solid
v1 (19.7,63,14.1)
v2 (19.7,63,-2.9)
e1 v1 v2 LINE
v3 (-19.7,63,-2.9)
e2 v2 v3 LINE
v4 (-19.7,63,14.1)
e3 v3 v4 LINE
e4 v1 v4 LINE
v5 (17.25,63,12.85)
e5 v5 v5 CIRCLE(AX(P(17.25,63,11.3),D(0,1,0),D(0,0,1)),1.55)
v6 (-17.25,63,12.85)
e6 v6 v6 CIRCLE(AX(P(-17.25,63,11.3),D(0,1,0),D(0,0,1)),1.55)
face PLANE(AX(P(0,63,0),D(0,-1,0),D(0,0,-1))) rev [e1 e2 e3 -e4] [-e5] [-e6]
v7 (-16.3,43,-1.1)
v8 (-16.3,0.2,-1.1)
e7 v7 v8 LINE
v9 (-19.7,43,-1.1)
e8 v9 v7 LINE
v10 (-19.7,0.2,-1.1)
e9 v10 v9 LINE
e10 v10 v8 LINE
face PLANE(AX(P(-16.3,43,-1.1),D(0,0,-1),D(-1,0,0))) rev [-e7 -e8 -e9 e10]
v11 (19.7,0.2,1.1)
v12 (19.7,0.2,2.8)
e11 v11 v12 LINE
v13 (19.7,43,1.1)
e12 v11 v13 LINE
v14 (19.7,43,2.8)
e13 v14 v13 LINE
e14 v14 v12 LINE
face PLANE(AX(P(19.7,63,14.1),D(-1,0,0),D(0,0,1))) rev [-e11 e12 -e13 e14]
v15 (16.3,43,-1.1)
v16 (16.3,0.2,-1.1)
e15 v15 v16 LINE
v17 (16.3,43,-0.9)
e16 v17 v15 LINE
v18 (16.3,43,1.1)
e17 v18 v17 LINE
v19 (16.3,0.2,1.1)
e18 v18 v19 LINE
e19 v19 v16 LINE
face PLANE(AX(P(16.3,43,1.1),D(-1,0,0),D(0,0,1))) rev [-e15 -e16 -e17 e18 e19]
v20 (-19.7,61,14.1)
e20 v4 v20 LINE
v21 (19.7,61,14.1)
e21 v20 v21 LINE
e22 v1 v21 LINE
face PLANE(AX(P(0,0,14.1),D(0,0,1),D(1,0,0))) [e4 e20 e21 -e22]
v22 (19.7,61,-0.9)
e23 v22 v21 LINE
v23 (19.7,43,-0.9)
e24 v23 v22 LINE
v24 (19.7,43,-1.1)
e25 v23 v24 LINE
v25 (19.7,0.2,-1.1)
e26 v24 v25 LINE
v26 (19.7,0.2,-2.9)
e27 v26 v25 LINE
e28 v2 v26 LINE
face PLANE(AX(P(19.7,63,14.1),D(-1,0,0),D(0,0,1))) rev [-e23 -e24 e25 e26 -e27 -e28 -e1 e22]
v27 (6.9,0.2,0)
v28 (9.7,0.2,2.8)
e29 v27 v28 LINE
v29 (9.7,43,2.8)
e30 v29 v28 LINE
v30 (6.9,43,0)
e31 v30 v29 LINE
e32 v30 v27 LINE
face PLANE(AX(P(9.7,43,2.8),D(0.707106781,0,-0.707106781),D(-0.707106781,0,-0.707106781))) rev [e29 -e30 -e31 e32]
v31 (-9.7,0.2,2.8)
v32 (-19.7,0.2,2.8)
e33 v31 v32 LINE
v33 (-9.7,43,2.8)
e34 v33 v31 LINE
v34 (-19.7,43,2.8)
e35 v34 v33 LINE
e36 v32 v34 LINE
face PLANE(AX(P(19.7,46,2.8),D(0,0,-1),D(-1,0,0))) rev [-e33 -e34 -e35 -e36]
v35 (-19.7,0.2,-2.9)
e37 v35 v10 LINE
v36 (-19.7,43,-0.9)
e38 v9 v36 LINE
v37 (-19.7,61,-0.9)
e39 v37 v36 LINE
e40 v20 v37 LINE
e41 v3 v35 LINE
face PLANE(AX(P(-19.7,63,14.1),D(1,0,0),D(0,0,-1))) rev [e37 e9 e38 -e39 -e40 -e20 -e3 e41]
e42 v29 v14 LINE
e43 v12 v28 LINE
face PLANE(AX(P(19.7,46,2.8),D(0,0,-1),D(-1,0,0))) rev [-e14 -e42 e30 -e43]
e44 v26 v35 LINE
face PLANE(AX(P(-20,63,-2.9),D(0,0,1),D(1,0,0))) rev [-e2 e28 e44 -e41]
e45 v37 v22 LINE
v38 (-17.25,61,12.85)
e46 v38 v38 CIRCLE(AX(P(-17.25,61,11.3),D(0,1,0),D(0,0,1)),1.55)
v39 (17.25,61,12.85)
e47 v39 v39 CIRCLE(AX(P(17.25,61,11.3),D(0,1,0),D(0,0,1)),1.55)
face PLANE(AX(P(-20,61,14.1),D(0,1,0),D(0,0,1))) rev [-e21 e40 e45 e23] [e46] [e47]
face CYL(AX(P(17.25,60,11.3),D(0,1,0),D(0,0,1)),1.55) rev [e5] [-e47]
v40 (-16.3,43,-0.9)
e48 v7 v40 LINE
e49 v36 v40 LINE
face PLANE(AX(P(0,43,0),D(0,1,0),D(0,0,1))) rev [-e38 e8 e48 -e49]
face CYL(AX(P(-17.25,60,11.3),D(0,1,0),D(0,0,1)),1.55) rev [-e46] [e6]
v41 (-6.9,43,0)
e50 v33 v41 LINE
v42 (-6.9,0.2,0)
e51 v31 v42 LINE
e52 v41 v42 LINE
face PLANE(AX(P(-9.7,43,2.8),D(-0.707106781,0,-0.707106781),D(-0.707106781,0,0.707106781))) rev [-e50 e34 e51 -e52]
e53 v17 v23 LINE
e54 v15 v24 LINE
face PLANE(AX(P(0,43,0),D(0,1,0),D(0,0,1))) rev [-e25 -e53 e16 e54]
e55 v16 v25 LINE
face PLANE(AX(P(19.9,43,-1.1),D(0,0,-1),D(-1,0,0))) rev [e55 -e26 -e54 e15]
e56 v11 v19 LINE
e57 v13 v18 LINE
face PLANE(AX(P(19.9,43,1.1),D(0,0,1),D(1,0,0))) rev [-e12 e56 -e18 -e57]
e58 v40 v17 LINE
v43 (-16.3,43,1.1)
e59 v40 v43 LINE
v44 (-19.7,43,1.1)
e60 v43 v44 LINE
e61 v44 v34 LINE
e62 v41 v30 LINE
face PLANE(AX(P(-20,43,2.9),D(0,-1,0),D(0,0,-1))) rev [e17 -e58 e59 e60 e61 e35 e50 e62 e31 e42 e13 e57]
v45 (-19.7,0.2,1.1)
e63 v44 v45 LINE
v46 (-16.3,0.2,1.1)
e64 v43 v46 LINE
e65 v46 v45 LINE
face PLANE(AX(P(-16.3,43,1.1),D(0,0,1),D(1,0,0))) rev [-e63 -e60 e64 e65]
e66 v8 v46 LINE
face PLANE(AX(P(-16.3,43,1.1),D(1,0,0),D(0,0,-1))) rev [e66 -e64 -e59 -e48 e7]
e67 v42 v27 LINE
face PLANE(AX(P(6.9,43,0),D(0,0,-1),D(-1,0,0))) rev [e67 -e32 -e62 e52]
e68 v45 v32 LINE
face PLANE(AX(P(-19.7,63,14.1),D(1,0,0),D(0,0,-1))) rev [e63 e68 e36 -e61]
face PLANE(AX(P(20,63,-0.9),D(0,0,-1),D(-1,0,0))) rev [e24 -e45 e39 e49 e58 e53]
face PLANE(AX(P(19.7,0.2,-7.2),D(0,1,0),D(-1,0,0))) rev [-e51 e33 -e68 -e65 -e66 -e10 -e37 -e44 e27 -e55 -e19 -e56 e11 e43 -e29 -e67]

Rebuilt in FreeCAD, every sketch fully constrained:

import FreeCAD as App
import Part
import Sketcher
from FreeCAD import Vector

doc = App.newDocument("Part")
body = doc.addObject("PartDesign::Body", "Body")

sketch1 = doc.addObject("Sketcher::SketchObject", "Sketch")
body.addObject(sketch1)
sketch1.AttachmentSupport = (doc.XZ_Plane, [""])
sketch1.MapMode = "FlatFace"
sketch1.addGeometry([
    Part.LineSegment(Vector(20, -2.9, 0), Vector(-20, -2.9, 0)),
    Part.LineSegment(Vector(-20, -2.9, 0), Vector(-20, -0.9, 0)),
    Part.LineSegment(Vector(-20, -0.9, 0), Vector(-16.5, -0.9, 0)),
    Part.LineSegment(Vector(-16.5, -0.9, 0), Vector(-16.5, 0.9, 0)),
    Part.LineSegment(Vector(-16.5, 0.9, 0), Vector(-20, 0.9, 0)),
    Part.LineSegment(Vector(-20, 0.9, 0), Vector(-20, 2.9, 0)),
    Part.LineSegment(Vector(-20, 2.9, 0), Vector(20, 2.9, 0)),
    Part.LineSegment(Vector(20, 2.9, 0), Vector(20, 0.9, 0)),
    Part.LineSegment(Vector(20, 0.9, 0), Vector(16.5, 0.9, 0)),
    Part.LineSegment(Vector(16.5, 0.9, 0), Vector(16.5, -0.9, 0)),
    Part.LineSegment(Vector(16.5, -0.9, 0), Vector(20, -0.9, 0)),
    Part.LineSegment(Vector(20, -0.9, 0), Vector(20, -2.9, 0)),
], False)
sketch1.addConstraint([
    Sketcher.Constraint("Coincident", 0, 2, 1, 1),
    Sketcher.Constraint("Coincident", 1, 2, 2, 1),
    Sketcher.Constraint("Coincident", 2, 2, 3, 1),
    Sketcher.Constraint("Coincident", 3, 2, 4, 1),
    Sketcher.Constraint("Coincident", 4, 2, 5, 1),
    Sketcher.Constraint("Coincident", 5, 2, 6, 1),
    Sketcher.Constraint("Coincident", 6, 2, 7, 1),
    Sketcher.Constraint("Coincident", 7, 2, 8, 1),
    Sketcher.Constraint("Coincident", 8, 2, 9, 1),
    Sketcher.Constraint("Coincident", 9, 2, 10, 1),
    Sketcher.Constraint("Coincident", 10, 2, 11, 1),
    Sketcher.Constraint("Coincident", 11, 2, 0, 1),
    Sketcher.Constraint("Horizontal", 0),
    Sketcher.Constraint("Vertical", 1),
    Sketcher.Constraint("Horizontal", 2),
    Sketcher.Constraint("Vertical", 3),
    Sketcher.Constraint("Horizontal", 4),
    Sketcher.Constraint("Vertical", 5),
    Sketcher.Constraint("Horizontal", 6),
    Sketcher.Constraint("Vertical", 7),
    Sketcher.Constraint("Horizontal", 8),
    Sketcher.Constraint("Vertical", 9),
    Sketcher.Constraint("Horizontal", 10),
    Sketcher.Constraint("Vertical", 11),
    Sketcher.Constraint("Symmetric", 0, 2, 6, 2, -1, 1),
    Sketcher.Constraint("Symmetric", 2, 2, 8, 2, -1, 1),
    Sketcher.Constraint("Symmetric", 4, 2, 10, 2, -1, 1),
    Sketcher.Constraint("Symmetric", 4, 2, 7, 2, -2),
    Sketcher.Constraint("DistanceX", 0, 2, 0, 1, 40.0),
    Sketcher.Constraint("DistanceY", 1, 1, 1, 2, 2.0),
    Sketcher.Constraint("DistanceX", 2, 1, 2, 2, 3.5),
    Sketcher.Constraint("DistanceY", 3, 1, 3, 2, 1.8),
])
pad1 = doc.addObject("PartDesign::Pad", "Pad")
body.addObject(pad1)
pad1.Profile = sketch1
pad1.Length = 63
pad1.Reversed = True

sketch2 = doc.addObject("Sketcher::SketchObject", "Sketch001")
body.addObject(sketch2)
sketch2.AttachmentSupport = (doc.YZ_Plane, [""])
sketch2.MapMode = "FlatFace"
sketch2.AttachmentOffset = App.Placement(Vector(0, 0, 20), App.Rotation())
sketch2.addGeometry([
    Part.LineSegment(Vector(63, 2.9, 0), Vector(43, 2.9, 0)),
    Part.LineSegment(Vector(43, 2.9, 0), Vector(43, -0.9, 0)),
    Part.LineSegment(Vector(43, -0.9, 0), Vector(63, -0.9, 0)),
    Part.LineSegment(Vector(63, -0.9, 0), Vector(63, 2.9, 0)),
], False)
sketch2.addConstraint([
    Sketcher.Constraint("Coincident", 0, 2, 1, 1),
    Sketcher.Constraint("Coincident", 1, 2, 2, 1),
    Sketcher.Constraint("Coincident", 2, 2, 3, 1),
    Sketcher.Constraint("Coincident", 3, 2, 0, 1),
    Sketcher.Constraint("Horizontal", 0),
    Sketcher.Constraint("Vertical", 1),
    Sketcher.Constraint("Horizontal", 2),
    Sketcher.Constraint("Vertical", 3),
    Sketcher.Constraint("DistanceX", 0, 2, 0, 1, 20.0),
    Sketcher.Constraint("DistanceY", 1, 2, 1, 1, 3.8),
    Sketcher.Constraint("DistanceX", -1, 1, 0, 2, 43.0),
    Sketcher.Constraint("DistanceY", -1, 1, 0, 2, 2.9),
])
pocket1 = doc.addObject("PartDesign::Pocket", "Pocket")
body.addObject(pocket1)
pocket1.Profile = sketch2
pocket1.Type = "ThroughAll"

sketch3 = doc.addObject("Sketcher::SketchObject", "Sketch002")
body.addObject(sketch3)
sketch3.AttachmentSupport = (doc.XY_Plane, [""])
sketch3.MapMode = "FlatFace"
sketch3.AttachmentOffset = App.Placement(Vector(0, 0, -0.9), App.Rotation())
sketch3.addGeometry([
    Part.LineSegment(Vector(-20, 63, 0), Vector(-20, 61, 0)),
    Part.LineSegment(Vector(-20, 61, 0), Vector(20, 61, 0)),
    Part.LineSegment(Vector(20, 61, 0), Vector(20, 63, 0)),
    Part.LineSegment(Vector(20, 63, 0), Vector(-20, 63, 0)),
], False)
sketch3.addConstraint([
    Sketcher.Constraint("Coincident", 0, 2, 1, 1),
    Sketcher.Constraint("Coincident", 1, 2, 2, 1),
    Sketcher.Constraint("Coincident", 2, 2, 3, 1),
    Sketcher.Constraint("Coincident", 3, 2, 0, 1),
    Sketcher.Constraint("Vertical", 0),
    Sketcher.Constraint("Horizontal", 1),
    Sketcher.Constraint("Vertical", 2),
    Sketcher.Constraint("Horizontal", 3),
    Sketcher.Constraint("DistanceX", 1, 1, 1, 2, 40.0),
    Sketcher.Constraint("DistanceY", 0, 2, 0, 1, 2.0),
    Sketcher.Constraint("DistanceX", 0, 2, -1, 1, 20.0),
    Sketcher.Constraint("DistanceY", -1, 1, 0, 2, 61.0),
])
pad2 = doc.addObject("PartDesign::Pad", "Pad001")
body.addObject(pad2)
pad2.Profile = sketch3
pad2.Length = 15

sketch4 = doc.addObject("Sketcher::SketchObject", "Sketch003")
body.addObject(sketch4)
sketch4.AttachmentSupport = (doc.XZ_Plane, [""])
sketch4.MapMode = "FlatFace"
sketch4.AttachmentOffset = App.Placement(Vector(0, 0, -63), App.Rotation())
sketch4.addGeometry([
    Part.Circle(Vector(-17.2, 11.3, 0), Vector(0, 0, 1), 1.6),
    Part.Circle(Vector(17.2, 11.3, 0), Vector(0, 0, 1), 1.6),
], False)
sketch4.addConstraint([
    Sketcher.Constraint("Equal", 0, 1),
    Sketcher.Constraint("Symmetric", 0, 3, 1, 3, -2),
    Sketcher.Constraint("Diameter", 0, 3.1),
    Sketcher.Constraint("DistanceY", -1, 1, 0, 3, 11.3),
    Sketcher.Constraint("DistanceX", 0, 3, 1, 3, 34.5),
])
pocket2 = doc.addObject("PartDesign::Pocket", "Pocket001")
body.addObject(pocket2)
pocket2.Profile = sketch4
pocket2.Length = 3
pocket2.Reversed = True

sketch5 = doc.addObject("Sketcher::SketchObject", "Sketch004")
body.addObject(sketch5)
sketch5.AttachmentSupport = (doc.XZ_Plane, [""])
sketch5.MapMode = "FlatFace"
sketch5.addGeometry([
    Part.LineSegment(Vector(-20, 14.1, 0), Vector(-20, -2.9, 0)),
    Part.LineSegment(Vector(-20, -2.9, 0), Vector(-19.7, -2.9, 0)),
    Part.LineSegment(Vector(-19.7, -2.9, 0), Vector(-19.7, 14.1, 0)),
    Part.LineSegment(Vector(-19.7, 14.1, 0), Vector(-20, 14.1, 0)),
    Part.LineSegment(Vector(19.7, 14.1, 0), Vector(19.7, -2.9, 0)),
    Part.LineSegment(Vector(19.7, -2.9, 0), Vector(20, -2.9, 0)),
    Part.LineSegment(Vector(20, -2.9, 0), Vector(20, 14.1, 0)),
    Part.LineSegment(Vector(20, 14.1, 0), Vector(19.7, 14.1, 0)),
], False)
sketch5.addConstraint([
    Sketcher.Constraint("Coincident", 0, 2, 1, 1),
    Sketcher.Constraint("Coincident", 1, 2, 2, 1),
    Sketcher.Constraint("Coincident", 2, 2, 3, 1),
    Sketcher.Constraint("Coincident", 3, 2, 0, 1),
    Sketcher.Constraint("Coincident", 4, 2, 5, 1),
    Sketcher.Constraint("Coincident", 5, 2, 6, 1),
    Sketcher.Constraint("Coincident", 6, 2, 7, 1),
    Sketcher.Constraint("Coincident", 7, 2, 4, 1),
    Sketcher.Constraint("Vertical", 0),
    Sketcher.Constraint("Horizontal", 1),
    Sketcher.Constraint("Vertical", 2),
    Sketcher.Constraint("Horizontal", 3),
    Sketcher.Constraint("Vertical", 4),
    Sketcher.Constraint("Horizontal", 5),
    Sketcher.Constraint("Vertical", 6),
    Sketcher.Constraint("Horizontal", 7),
    Sketcher.Constraint("Symmetric", 1, 2, 4, 2, -2),
    Sketcher.Constraint("Symmetric", 3, 2, 6, 2, -2),
    Sketcher.Constraint("DistanceY", 0, 2, 0, 1, 17.0),
    Sketcher.Constraint("DistanceX", 1, 1, 1, 2, 0.3),
    Sketcher.Constraint("DistanceX", 0, 2, -1, 1, 20.0),
    Sketcher.Constraint("DistanceY", 0, 2, -1, 1, 2.9),
])
pocket3 = doc.addObject("PartDesign::Pocket", "Pocket002")
body.addObject(pocket3)
pocket3.Profile = sketch5
pocket3.Type = "ThroughAll"

sketch6 = doc.addObject("Sketcher::SketchObject", "Sketch005")
body.addObject(sketch6)
sketch6.AttachmentSupport = (doc.XZ_Plane, [""])
sketch6.MapMode = "FlatFace"
sketch6.addGeometry([
    Part.LineSegment(Vector(16.3, 1.1, 0), Vector(16.3, -1.1, 0)),
    Part.LineSegment(Vector(16.3, -1.1, 0), Vector(19.9, -1.1, 0)),
    Part.LineSegment(Vector(19.9, -1.1, 0), Vector(19.9, 1.1, 0)),
    Part.LineSegment(Vector(19.9, 1.1, 0), Vector(16.3, 1.1, 0)),
    Part.LineSegment(Vector(-19.9, 1.1, 0), Vector(-19.9, -1.1, 0)),
    Part.LineSegment(Vector(-19.9, -1.1, 0), Vector(-16.3, -1.1, 0)),
    Part.LineSegment(Vector(-16.3, -1.1, 0), Vector(-16.3, 1.1, 0)),
    Part.LineSegment(Vector(-16.3, 1.1, 0), Vector(-19.9, 1.1, 0)),
], False)
sketch6.addConstraint([
    Sketcher.Constraint("Coincident", 0, 2, 1, 1),
    Sketcher.Constraint("Coincident", 1, 2, 2, 1),
    Sketcher.Constraint("Coincident", 2, 2, 3, 1),
    Sketcher.Constraint("Coincident", 3, 2, 0, 1),
    Sketcher.Constraint("Coincident", 4, 2, 5, 1),
    Sketcher.Constraint("Coincident", 5, 2, 6, 1),
    Sketcher.Constraint("Coincident", 6, 2, 7, 1),
    Sketcher.Constraint("Coincident", 7, 2, 4, 1),
    Sketcher.Constraint("Vertical", 0),
    Sketcher.Constraint("Horizontal", 1),
    Sketcher.Constraint("Vertical", 2),
    Sketcher.Constraint("Horizontal", 3),
    Sketcher.Constraint("Vertical", 4),
    Sketcher.Constraint("Horizontal", 5),
    Sketcher.Constraint("Vertical", 6),
    Sketcher.Constraint("Horizontal", 7),
    Sketcher.Constraint("Symmetric", 2, 2, 4, 2, -1, 1),
    Sketcher.Constraint("Symmetric", 0, 2, 6, 2, -1, 1),
    Sketcher.Constraint("Horizontal", 1, 2, 4, 2),
    Sketcher.Constraint("DistanceX", 1, 1, 1, 2, 3.6),
    Sketcher.Constraint("DistanceY", 0, 2, 0, 1, 2.2),
    Sketcher.Constraint("DistanceX", -1, 1, 0, 2, 16.3),
])
pocket4 = doc.addObject("PartDesign::Pocket", "Pocket003")
body.addObject(pocket4)
pocket4.Profile = sketch6
pocket4.Length = 43

sketch7 = doc.addObject("Sketcher::SketchObject", "Sketch006")
body.addObject(sketch7)
sketch7.AttachmentSupport = (doc.XZ_Plane, [""])
sketch7.MapMode = "FlatFace"
sketch7.addGeometry([
    Part.LineSegment(Vector(-19.7, 2.9, 0), Vector(-19.7, 2.8, 0)),
    Part.LineSegment(Vector(-19.7, 2.8, 0), Vector(19.7, 2.8, 0)),
    Part.LineSegment(Vector(19.7, 2.8, 0), Vector(19.7, 2.9, 0)),
    Part.LineSegment(Vector(19.7, 2.9, 0), Vector(-19.7, 2.9, 0)),
], False)
sketch7.addConstraint([
    Sketcher.Constraint("Coincident", 0, 2, 1, 1),
    Sketcher.Constraint("Coincident", 1, 2, 2, 1),
    Sketcher.Constraint("Coincident", 2, 2, 3, 1),
    Sketcher.Constraint("Coincident", 3, 2, 0, 1),
    Sketcher.Constraint("Vertical", 0),
    Sketcher.Constraint("Horizontal", 1),
    Sketcher.Constraint("Vertical", 2),
    Sketcher.Constraint("Horizontal", 3),
    Sketcher.Constraint("DistanceX", 1, 1, 1, 2, 39.4),
    Sketcher.Constraint("DistanceY", 0, 2, 0, 1, 0.1),
    Sketcher.Constraint("DistanceX", 0, 2, -1, 1, 19.7),
    Sketcher.Constraint("DistanceY", -1, 1, 0, 2, 2.8),
])
pocket5 = doc.addObject("PartDesign::Pocket", "Pocket004")
body.addObject(pocket5)
pocket5.Profile = sketch7
pocket5.Length = 46

sketch8 = doc.addObject("Sketcher::SketchObject", "Sketch007")
body.addObject(sketch8)
sketch8.AttachmentSupport = (doc.XZ_Plane, [""])
sketch8.MapMode = "FlatFace"
sketch8.addGeometry([
    Part.LineSegment(Vector(6.9, 0, 0), Vector(9.7, 2.8, 0)),
    Part.LineSegment(Vector(9.7, 2.8, 0), Vector(-9.7, 2.8, 0)),
    Part.LineSegment(Vector(-9.7, 2.8, 0), Vector(-6.9, 0, 0)),
    Part.LineSegment(Vector(-6.9, 0, 0), Vector(6.9, 0, 0)),
], False)
sketch8.addConstraint([
    Sketcher.Constraint("Coincident", 0, 2, 1, 1),
    Sketcher.Constraint("Coincident", 1, 2, 2, 1),
    Sketcher.Constraint("Coincident", 2, 2, 3, 1),
    Sketcher.Constraint("Coincident", 3, 2, 0, 1),
    Sketcher.Constraint("Horizontal", 1),
    Sketcher.Constraint("Horizontal", 3),
    Sketcher.Constraint("Symmetric", 2, 2, 3, 2, -1, 1),
    Sketcher.Constraint("Perpendicular", 0, 2),
    Sketcher.Constraint("Equal", 0, 2),
    Sketcher.Constraint("DistanceX", 1, 2, 1, 1, 19.4),
    Sketcher.Constraint("DistanceX", 3, 1, 3, 2, 13.8),
])
pocket6 = doc.addObject("PartDesign::Pocket", "Pocket005")
body.addObject(pocket6)
pocket6.Profile = sketch8
pocket6.Length = 43

sketch9 = doc.addObject("Sketcher::SketchObject", "Sketch008")
body.addObject(sketch9)
sketch9.AttachmentSupport = (doc.XY_Plane, [""])
sketch9.MapMode = "FlatFace"
sketch9.AttachmentOffset = App.Placement(Vector(0, 0, 2.8), App.Rotation())
sketch9.addGeometry([
    Part.LineSegment(Vector(-19.7, 0.2, 0), Vector(-19.7, 0, 0)),
    Part.LineSegment(Vector(-19.7, 0, 0), Vector(19.7, 0, 0)),
    Part.LineSegment(Vector(19.7, 0, 0), Vector(19.7, 0.2, 0)),
    Part.LineSegment(Vector(19.7, 0.2, 0), Vector(-19.7, 0.2, 0)),
], False)
sketch9.addConstraint([
    Sketcher.Constraint("Coincident", 0, 2, 1, 1),
    Sketcher.Constraint("Coincident", 1, 2, 2, 1),
    Sketcher.Constraint("Coincident", 2, 2, 3, 1),
    Sketcher.Constraint("Coincident", 3, 2, 0, 1),
    Sketcher.Constraint("Vertical", 0),
    Sketcher.Constraint("Horizontal", 1),
    Sketcher.Constraint("Vertical", 2),
    Sketcher.Constraint("Horizontal", 3),
    Sketcher.Constraint("Symmetric", 0, 2, 1, 2, -1, 1),
    Sketcher.Constraint("DistanceX", 1, 1, 1, 2, 39.4),
    Sketcher.Constraint("DistanceY", 0, 2, 0, 1, 0.2),
])
pocket7 = doc.addObject("PartDesign::Pocket", "Pocket006")
body.addObject(pocket7)
pocket7.Profile = sketch9
pocket7.Length = 10

doc.recompute()
